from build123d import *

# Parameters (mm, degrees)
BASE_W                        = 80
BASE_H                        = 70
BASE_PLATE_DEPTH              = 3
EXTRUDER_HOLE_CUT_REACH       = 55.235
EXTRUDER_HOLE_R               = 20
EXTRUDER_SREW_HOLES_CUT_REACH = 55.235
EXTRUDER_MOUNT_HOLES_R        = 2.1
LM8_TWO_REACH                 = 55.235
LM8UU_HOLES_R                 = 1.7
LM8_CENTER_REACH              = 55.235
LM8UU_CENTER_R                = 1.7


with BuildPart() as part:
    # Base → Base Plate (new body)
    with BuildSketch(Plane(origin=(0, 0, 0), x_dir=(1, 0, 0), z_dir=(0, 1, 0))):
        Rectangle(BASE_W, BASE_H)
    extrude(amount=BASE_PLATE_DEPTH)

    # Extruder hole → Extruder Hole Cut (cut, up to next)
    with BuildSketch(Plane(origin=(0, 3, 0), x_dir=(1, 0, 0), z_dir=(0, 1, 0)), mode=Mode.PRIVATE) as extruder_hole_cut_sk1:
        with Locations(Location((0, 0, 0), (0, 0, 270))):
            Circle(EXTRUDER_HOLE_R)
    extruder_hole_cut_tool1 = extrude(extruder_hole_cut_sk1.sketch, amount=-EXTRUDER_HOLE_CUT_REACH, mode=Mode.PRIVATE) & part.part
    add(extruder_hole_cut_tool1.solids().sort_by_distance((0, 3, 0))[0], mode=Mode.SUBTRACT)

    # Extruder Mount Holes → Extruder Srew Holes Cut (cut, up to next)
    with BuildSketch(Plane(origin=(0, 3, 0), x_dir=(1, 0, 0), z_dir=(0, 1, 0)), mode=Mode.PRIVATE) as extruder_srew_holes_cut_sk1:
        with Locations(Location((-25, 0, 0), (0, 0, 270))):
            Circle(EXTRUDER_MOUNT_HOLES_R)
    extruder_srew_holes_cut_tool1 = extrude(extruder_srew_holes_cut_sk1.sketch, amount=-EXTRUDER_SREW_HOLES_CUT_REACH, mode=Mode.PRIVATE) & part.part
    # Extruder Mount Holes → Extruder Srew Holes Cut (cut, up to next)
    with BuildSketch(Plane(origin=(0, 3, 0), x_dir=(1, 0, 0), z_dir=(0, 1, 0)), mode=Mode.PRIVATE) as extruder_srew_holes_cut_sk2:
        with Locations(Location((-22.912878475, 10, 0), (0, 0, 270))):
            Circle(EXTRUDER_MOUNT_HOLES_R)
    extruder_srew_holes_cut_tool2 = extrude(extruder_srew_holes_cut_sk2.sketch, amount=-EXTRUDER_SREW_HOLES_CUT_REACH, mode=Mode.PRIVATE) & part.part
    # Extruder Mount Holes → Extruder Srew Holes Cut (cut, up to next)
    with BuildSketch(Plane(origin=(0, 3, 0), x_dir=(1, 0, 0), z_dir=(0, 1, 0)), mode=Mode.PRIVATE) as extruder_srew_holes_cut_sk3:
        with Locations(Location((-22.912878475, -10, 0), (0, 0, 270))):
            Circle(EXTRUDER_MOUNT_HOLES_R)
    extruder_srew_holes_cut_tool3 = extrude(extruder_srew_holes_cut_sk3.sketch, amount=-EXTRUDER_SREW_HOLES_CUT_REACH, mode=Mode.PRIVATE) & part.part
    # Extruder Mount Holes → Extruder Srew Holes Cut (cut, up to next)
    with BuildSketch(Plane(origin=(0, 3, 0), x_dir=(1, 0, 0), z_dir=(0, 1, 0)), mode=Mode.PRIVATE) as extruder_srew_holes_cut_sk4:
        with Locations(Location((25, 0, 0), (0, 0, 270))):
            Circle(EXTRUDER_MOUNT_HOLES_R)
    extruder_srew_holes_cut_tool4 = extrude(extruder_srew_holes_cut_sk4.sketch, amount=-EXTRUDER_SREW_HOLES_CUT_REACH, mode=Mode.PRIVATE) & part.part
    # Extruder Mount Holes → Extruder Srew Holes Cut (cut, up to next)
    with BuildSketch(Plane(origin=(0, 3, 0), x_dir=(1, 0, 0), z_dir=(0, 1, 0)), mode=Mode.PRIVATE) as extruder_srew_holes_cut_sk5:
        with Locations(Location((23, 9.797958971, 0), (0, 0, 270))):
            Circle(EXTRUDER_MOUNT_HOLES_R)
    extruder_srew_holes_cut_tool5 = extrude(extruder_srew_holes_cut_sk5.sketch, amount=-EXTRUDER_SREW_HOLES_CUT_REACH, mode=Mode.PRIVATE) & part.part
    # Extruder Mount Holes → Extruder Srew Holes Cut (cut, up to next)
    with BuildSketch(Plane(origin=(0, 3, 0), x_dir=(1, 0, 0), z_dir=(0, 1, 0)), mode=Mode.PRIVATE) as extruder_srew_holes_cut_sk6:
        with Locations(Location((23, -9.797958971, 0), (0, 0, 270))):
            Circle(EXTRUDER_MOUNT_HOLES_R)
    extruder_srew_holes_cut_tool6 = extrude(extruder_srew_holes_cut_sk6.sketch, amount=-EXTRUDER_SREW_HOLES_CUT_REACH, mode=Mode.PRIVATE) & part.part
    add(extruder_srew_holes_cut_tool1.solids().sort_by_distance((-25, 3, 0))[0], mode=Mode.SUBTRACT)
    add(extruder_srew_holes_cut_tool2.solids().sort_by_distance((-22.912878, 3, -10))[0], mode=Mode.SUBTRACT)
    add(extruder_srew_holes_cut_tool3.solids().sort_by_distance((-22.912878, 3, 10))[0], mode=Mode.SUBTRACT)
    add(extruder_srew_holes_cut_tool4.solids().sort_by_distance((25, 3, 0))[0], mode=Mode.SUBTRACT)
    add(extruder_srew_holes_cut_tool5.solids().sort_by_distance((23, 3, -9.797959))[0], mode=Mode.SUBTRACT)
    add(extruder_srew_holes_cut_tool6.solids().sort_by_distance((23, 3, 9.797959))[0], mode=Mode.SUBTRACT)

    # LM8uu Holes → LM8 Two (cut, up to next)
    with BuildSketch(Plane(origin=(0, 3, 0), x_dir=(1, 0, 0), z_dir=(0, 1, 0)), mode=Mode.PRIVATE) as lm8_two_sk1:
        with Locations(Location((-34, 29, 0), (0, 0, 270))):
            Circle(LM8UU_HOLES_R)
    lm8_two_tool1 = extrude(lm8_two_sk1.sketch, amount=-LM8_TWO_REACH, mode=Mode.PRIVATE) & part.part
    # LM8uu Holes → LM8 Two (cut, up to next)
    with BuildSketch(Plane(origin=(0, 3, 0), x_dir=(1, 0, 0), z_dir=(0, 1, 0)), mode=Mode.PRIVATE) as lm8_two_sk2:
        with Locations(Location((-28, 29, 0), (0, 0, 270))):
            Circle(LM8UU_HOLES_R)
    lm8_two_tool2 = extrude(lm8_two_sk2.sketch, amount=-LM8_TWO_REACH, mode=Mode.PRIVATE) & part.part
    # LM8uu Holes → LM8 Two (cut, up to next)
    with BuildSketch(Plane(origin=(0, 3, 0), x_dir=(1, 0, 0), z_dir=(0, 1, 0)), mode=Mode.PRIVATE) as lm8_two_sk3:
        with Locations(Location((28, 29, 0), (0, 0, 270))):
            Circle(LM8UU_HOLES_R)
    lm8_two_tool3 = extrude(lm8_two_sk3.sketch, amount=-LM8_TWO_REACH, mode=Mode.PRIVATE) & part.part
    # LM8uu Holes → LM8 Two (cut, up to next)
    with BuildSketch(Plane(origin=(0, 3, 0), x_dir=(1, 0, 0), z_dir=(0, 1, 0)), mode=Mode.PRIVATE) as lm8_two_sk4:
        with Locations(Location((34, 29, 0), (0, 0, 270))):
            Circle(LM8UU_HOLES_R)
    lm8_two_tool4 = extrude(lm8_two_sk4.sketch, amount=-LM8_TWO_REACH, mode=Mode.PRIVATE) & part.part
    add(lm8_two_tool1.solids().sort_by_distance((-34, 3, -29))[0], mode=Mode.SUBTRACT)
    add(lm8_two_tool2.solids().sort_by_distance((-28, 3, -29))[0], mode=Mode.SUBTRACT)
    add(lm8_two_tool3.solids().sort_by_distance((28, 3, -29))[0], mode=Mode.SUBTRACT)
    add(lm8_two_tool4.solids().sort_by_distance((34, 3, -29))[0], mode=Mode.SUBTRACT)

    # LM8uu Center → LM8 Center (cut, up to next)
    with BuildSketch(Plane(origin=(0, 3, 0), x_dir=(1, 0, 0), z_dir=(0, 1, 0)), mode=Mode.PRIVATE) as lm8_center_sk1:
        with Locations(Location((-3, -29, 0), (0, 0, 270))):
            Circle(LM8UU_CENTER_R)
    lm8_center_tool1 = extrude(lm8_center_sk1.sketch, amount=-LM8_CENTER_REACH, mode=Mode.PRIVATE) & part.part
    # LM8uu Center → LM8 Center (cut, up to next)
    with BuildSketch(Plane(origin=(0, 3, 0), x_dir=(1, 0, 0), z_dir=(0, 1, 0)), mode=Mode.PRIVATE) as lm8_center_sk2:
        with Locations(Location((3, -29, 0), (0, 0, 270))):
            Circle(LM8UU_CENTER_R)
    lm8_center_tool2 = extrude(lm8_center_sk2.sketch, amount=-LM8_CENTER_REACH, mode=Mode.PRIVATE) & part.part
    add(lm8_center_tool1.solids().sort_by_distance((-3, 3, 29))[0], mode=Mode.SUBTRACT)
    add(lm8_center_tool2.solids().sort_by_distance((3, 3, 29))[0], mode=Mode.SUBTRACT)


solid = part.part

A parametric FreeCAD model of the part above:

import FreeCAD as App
import Part
import Sketcher

V = App.Vector

doc = App.newDocument("Part")
body = doc.addObject("PartDesign::Body", "Body")

# Sketch on XZ plane
sketch1 = body.newObject("Sketcher::SketchObject", "Sketch")
sketch1.AttachmentSupport = (doc.getObject("XZ_Plane"), [""])
sketch1.MapMode = "FlatFace"
sketch1.addGeometry([
    Part.LineSegment(V(-40, -35, 0), V(-40, 35, 0)),
    Part.LineSegment(V(-40, 35, 0), V(40, 35, 0)),
    Part.LineSegment(V(40, 35, 0), V(40, -35, 0)),
    Part.LineSegment(V(40, -35, 0), V(-40, -35, 0)),
], False)
sketch1.addConstraint([
    Sketcher.Constraint("Coincident", 0, 2, 1, 1),
    Sketcher.Constraint("Coincident", 1, 2, 2, 1),
    Sketcher.Constraint("Coincident", 2, 2, 3, 1),
    Sketcher.Constraint("Coincident", 3, 2, 0, 1),
    Sketcher.Constraint("Vertical", 0),
    Sketcher.Constraint("Horizontal", 1),
    Sketcher.Constraint("Vertical", 2),
    Sketcher.Constraint("Horizontal", 3),
    Sketcher.Constraint("Symmetric", 0, 2, 2, 2, -1, 1),
    Sketcher.Constraint("DistanceX", 1, 1, 1, 2, 80.0),
    Sketcher.Constraint("DistanceY", 0, 1, 0, 2, 70.0),
])
pad1 = body.newObject("PartDesign::Pad", "Pad")
pad1.Profile = sketch1
pad1.Length = 3
pad1.Reversed = True

# Sketch on XZ plane
sketch2 = body.newObject("Sketcher::SketchObject", "Sketch001")
sketch2.AttachmentSupport = (doc.getObject("XZ_Plane"), [""])
sketch2.MapMode = "FlatFace"
sketch2.AttachmentOffset = App.Placement(V(0, 0, -3), App.Rotation())
sketch2.addGeometry(Part.Circle(V(0, 0, 0), V(0, 0, 1), 20), False)
sketch2.addConstraint([
    Sketcher.Constraint("Coincident", 0, 3, -1, 1),
    Sketcher.Constraint("Diameter", 0, 40.0),
])
pocket1 = body.newObject("PartDesign::Pocket", "Pocket")
pocket1.Profile = sketch2
pocket1.Type = "UpToFirst"
pocket1.Reversed = True

# Sketch on XZ plane
sketch3 = body.newObject("Sketcher::SketchObject", "Sketch002")
sketch3.AttachmentSupport = (doc.getObject("XZ_Plane"), [""])
sketch3.MapMode = "FlatFace"
sketch3.AttachmentOffset = App.Placement(V(0, 0, -3), App.Rotation())
sketch3.addGeometry(Part.Circle(V(-25, 0, 0), V(0, 0, 1), 2.1), False)
sketch3.addConstraint([
    Sketcher.Constraint("PointOnObject", 0, 3, -1),
    Sketcher.Constraint("Diameter", 0, 4.2),
    Sketcher.Constraint("DistanceX", 0, 3, -1, 1, 25.0),
])
pocket2 = body.newObject("PartDesign::Pocket", "Pocket001")
pocket2.Profile = sketch3
pocket2.Type = "UpToFirst"
pocket2.Reversed = True

# Sketch on XZ plane
sketch4 = body.newObject("Sketcher::SketchObject", "Sketch003")
sketch4.AttachmentSupport = (doc.getObject("XZ_Plane"), [""])
sketch4.MapMode = "FlatFace"
sketch4.AttachmentOffset = App.Placement(V(0, 0, -3), App.Rotation())
sketch4.addGeometry(Part.Circle(V(-22.9, -10, 0), V(0, 0, 1), 2.1), False)
sketch4.addConstraint([
    Sketcher.Constraint("Diameter", 0, 4.2),
    Sketcher.Constraint("DistanceY", 0, 3, -1, 1, 10.0),
    Sketcher.Constraint("DistanceX", 0, 3, -1, 1, 22.912878),
])
pocket3 = body.newObject("PartDesign::Pocket", "Pocket002")
pocket3.Profile = sketch4
pocket3.Type = "UpToFirst"
pocket3.Reversed = True

# Sketch on XZ plane
sketch5 = body.newObject("Sketcher::SketchObject", "Sketch004")
sketch5.AttachmentSupport = (doc.getObject("XZ_Plane"), [""])
sketch5.MapMode = "FlatFace"
sketch5.AttachmentOffset = App.Placement(V(0, 0, -3), App.Rotation())
sketch5.addGeometry(Part.Circle(V(-22.9, 10, 0), V(0, 0, 1), 2.1), False)
sketch5.addConstraint([
    Sketcher.Constraint("Diameter", 0, 4.2),
    Sketcher.Constraint("DistanceY", -1, 1, 0, 3, 10.0),
    Sketcher.Constraint("DistanceX", 0, 3, -1, 1, 22.912878),
])
pocket4 = body.newObject("PartDesign::Pocket", "Pocket003")
pocket4.Profile = sketch5
pocket4.Type = "UpToFirst"
pocket4.Reversed = True

# Sketch on XZ plane
sketch6 = body.newObject("Sketcher::SketchObject", "Sketch005")
sketch6.AttachmentSupport = (doc.getObject("XZ_Plane"), [""])
sketch6.MapMode = "FlatFace"
sketch6.AttachmentOffset = App.Placement(V(0, 0, -3), App.Rotation())
sketch6.addGeometry(Part.Circle(V(25, 0, 0), V(0, 0, 1), 2.1), False)
sketch6.addConstraint([
    Sketcher.Constraint("PointOnObject", 0, 3, -1),
    Sketcher.Constraint("Diameter", 0, 4.2),
    Sketcher.Constraint("DistanceX", -1, 1, 0, 3, 25.0),
])
pocket5 = body.newObject("PartDesign::Pocket", "Pocket004")
pocket5.Profile = sketch6
pocket5.Type = "UpToFirst"
pocket5.Reversed = True

# Sketch on XZ plane
sketch7 = body.newObject("Sketcher::SketchObject", "Sketch006")
sketch7.AttachmentSupport = (doc.getObject("XZ_Plane"), [""])
sketch7.MapMode = "FlatFace"
sketch7.AttachmentOffset = App.Placement(V(0, 0, -3), App.Rotation())
sketch7.addGeometry(Part.Circle(V(23, -9.8, 0), V(0, 0, 1), 2.1), False)
sketch7.addConstraint([
    Sketcher.Constraint("Diameter", 0, 4.2),
    Sketcher.Constraint("DistanceX", -1, 1, 0, 3, 23.0),
    Sketcher.Constraint("DistanceY", 0, 3, -1, 1, 9.797959),
])
pocket6 = body.newObject("PartDesign::Pocket", "Pocket005")
pocket6.Profile = sketch7
pocket6.Type = "UpToFirst"
pocket6.Reversed = True

# Sketch on XZ plane
sketch8 = body.newObject("Sketcher::SketchObject", "Sketch007")
sketch8.AttachmentSupport = (doc.getObject("XZ_Plane"), [""])
sketch8.MapMode = "FlatFace"
sketch8.AttachmentOffset = App.Placement(V(0, 0, -3), App.Rotation())
sketch8.addGeometry(Part.Circle(V(23, 9.8, 0), V(0, 0, 1), 2.1), False)
sketch8.addConstraint([
    Sketcher.Constraint("Diameter", 0, 4.2),
    Sketcher.Constraint("DistanceX", -1, 1, 0, 3, 23.0),
    Sketcher.Constraint("DistanceY", -1, 1, 0, 3, 9.797959),
])
pocket7 = body.newObject("PartDesign::Pocket", "Pocket006")
pocket7.Profile = sketch8
pocket7.Type = "UpToFirst"
pocket7.Reversed = True

# Sketch on XZ plane
sketch9 = body.newObject("Sketcher::SketchObject", "Sketch008")
sketch9.AttachmentSupport = (doc.getObject("XZ_Plane"), [""])
sketch9.MapMode = "FlatFace"
sketch9.AttachmentOffset = App.Placement(V(0, 0, -3), App.Rotation())
sketch9.addGeometry(Part.Circle(V(-34, -29, 0), V(0, 0, 1), 1.7), False)
sketch9.addConstraint([
    Sketcher.Constraint("Diameter", 0, 3.4),
    Sketcher.Constraint("DistanceX", 0, 3, -1, 1, 34.0),
    Sketcher.Constraint("DistanceY", 0, 3, -1, 1, 29.0),
])
pocket8 = body.newObject("PartDesign::Pocket", "Pocket007")
pocket8.Profile = sketch9
pocket8.Type = "UpToFirst"
pocket8.Reversed = True

# Sketch on XZ plane
sketch10 = body.newObject("Sketcher::SketchObject", "Sketch009")
sketch10.AttachmentSupport = (doc.getObject("XZ_Plane"), [""])
sketch10.MapMode = "FlatFace"
sketch10.AttachmentOffset = App.Placement(V(0, 0, -3), App.Rotation())
sketch10.addGeometry(Part.Circle(V(-28, -29, 0), V(0, 0, 1), 1.7), False)
sketch10.addConstraint([
    Sketcher.Constraint("Diameter", 0, 3.4),
    Sketcher.Constraint("DistanceX", 0, 3, -1, 1, 28.0),
    Sketcher.Constraint("DistanceY", 0, 3, -1, 1, 29.0),
])
pocket9 = body.newObject("PartDesign::Pocket", "Pocket008")
pocket9.Profile = sketch10
pocket9.Type = "UpToFirst"
pocket9.Reversed = True

# Sketch on XZ plane
sketch11 = body.newObject("Sketcher::SketchObject", "Sketch010")
sketch11.AttachmentSupport = (doc.getObject("XZ_Plane"), [""])
sketch11.MapMode = "FlatFace"
sketch11.AttachmentOffset = App.Placement(V(0, 0, -3), App.Rotation())
sketch11.addGeometry(Part.Circle(V(28, -29, 0), V(0, 0, 1), 1.7), False)
sketch11.addConstraint([
    Sketcher.Constraint("Diameter", 0, 3.4),
    Sketcher.Constraint("DistanceX", -1, 1, 0, 3, 28.0),
    Sketcher.Constraint("DistanceY", 0, 3, -1, 1, 29.0),
])
pocket10 = body.newObject("PartDesign::Pocket", "Pocket009")
pocket10.Profile = sketch11
pocket10.Type = "UpToFirst"
pocket10.Reversed = True

# Sketch on XZ plane
sketch12 = body.newObject("Sketcher::SketchObject", "Sketch011")
sketch12.AttachmentSupport = (doc.getObject("XZ_Plane"), [""])
sketch12.MapMode = "FlatFace"
sketch12.AttachmentOffset = App.Placement(V(0, 0, -3), App.Rotation())
sketch12.addGeometry(Part.Circle(V(34, -29, 0), V(0, 0, 1), 1.7), False)
sketch12.addConstraint([
    Sketcher.Constraint("Diameter", 0, 3.4),
    Sketcher.Constraint("DistanceX", -1, 1, 0, 3, 34.0),
    Sketcher.Constraint("DistanceY", 0, 3, -1, 1, 29.0),
])
pocket11 = body.newObject("PartDesign::Pocket", "Pocket010")
pocket11.Profile = sketch12
pocket11.Type = "UpToFirst"
pocket11.Reversed = True

# Sketch on XZ plane
sketch13 = body.newObject("Sketcher::SketchObject", "Sketch012")
sketch13.AttachmentSupport = (doc.getObject("XZ_Plane"), [""])
sketch13.MapMode = "FlatFace"
sketch13.AttachmentOffset = App.Placement(V(0, 0, -3), App.Rotation())
sketch13.addGeometry(Part.Circle(V(-3, 29, 0), V(0, 0, 1), 1.7), False)
sketch13.addConstraint([
    Sketcher.Constraint("Diameter", 0, 3.4),
    Sketcher.Constraint("DistanceX", 0, 3, -1, 1, 3.0),
    Sketcher.Constraint("DistanceY", -1, 1, 0, 3, 29.0),
])
pocket12 = body.newObject("PartDesign::Pocket", "Pocket011")
pocket12.Profile = sketch13
pocket12.Type = "UpToFirst"
pocket12.Reversed = True

# Sketch on XZ plane
sketch14 = body.newObject("Sketcher::SketchObject", "Sketch013")
sketch14.AttachmentSupport = (doc.getObject("XZ_Plane"), [""])
sketch14.MapMode = "FlatFace"
sketch14.AttachmentOffset = App.Placement(V(0, 0, -3), App.Rotation())
sketch14.addGeometry(Part.Circle(V(3, 29, 0), V(0, 0, 1), 1.7), False)
sketch14.addConstraint([
    Sketcher.Constraint("Diameter", 0, 3.4),
    Sketcher.Constraint("DistanceX", -1, 1, 0, 3, 3.0),
    Sketcher.Constraint("DistanceY", -1, 1, 0, 3, 29.0),
])
pocket13 = body.newObject("PartDesign::Pocket", "Pocket012")
pocket13.Profile = sketch14
pocket13.Type = "UpToFirst"
pocket13.Reversed = True

doc.recompute()
